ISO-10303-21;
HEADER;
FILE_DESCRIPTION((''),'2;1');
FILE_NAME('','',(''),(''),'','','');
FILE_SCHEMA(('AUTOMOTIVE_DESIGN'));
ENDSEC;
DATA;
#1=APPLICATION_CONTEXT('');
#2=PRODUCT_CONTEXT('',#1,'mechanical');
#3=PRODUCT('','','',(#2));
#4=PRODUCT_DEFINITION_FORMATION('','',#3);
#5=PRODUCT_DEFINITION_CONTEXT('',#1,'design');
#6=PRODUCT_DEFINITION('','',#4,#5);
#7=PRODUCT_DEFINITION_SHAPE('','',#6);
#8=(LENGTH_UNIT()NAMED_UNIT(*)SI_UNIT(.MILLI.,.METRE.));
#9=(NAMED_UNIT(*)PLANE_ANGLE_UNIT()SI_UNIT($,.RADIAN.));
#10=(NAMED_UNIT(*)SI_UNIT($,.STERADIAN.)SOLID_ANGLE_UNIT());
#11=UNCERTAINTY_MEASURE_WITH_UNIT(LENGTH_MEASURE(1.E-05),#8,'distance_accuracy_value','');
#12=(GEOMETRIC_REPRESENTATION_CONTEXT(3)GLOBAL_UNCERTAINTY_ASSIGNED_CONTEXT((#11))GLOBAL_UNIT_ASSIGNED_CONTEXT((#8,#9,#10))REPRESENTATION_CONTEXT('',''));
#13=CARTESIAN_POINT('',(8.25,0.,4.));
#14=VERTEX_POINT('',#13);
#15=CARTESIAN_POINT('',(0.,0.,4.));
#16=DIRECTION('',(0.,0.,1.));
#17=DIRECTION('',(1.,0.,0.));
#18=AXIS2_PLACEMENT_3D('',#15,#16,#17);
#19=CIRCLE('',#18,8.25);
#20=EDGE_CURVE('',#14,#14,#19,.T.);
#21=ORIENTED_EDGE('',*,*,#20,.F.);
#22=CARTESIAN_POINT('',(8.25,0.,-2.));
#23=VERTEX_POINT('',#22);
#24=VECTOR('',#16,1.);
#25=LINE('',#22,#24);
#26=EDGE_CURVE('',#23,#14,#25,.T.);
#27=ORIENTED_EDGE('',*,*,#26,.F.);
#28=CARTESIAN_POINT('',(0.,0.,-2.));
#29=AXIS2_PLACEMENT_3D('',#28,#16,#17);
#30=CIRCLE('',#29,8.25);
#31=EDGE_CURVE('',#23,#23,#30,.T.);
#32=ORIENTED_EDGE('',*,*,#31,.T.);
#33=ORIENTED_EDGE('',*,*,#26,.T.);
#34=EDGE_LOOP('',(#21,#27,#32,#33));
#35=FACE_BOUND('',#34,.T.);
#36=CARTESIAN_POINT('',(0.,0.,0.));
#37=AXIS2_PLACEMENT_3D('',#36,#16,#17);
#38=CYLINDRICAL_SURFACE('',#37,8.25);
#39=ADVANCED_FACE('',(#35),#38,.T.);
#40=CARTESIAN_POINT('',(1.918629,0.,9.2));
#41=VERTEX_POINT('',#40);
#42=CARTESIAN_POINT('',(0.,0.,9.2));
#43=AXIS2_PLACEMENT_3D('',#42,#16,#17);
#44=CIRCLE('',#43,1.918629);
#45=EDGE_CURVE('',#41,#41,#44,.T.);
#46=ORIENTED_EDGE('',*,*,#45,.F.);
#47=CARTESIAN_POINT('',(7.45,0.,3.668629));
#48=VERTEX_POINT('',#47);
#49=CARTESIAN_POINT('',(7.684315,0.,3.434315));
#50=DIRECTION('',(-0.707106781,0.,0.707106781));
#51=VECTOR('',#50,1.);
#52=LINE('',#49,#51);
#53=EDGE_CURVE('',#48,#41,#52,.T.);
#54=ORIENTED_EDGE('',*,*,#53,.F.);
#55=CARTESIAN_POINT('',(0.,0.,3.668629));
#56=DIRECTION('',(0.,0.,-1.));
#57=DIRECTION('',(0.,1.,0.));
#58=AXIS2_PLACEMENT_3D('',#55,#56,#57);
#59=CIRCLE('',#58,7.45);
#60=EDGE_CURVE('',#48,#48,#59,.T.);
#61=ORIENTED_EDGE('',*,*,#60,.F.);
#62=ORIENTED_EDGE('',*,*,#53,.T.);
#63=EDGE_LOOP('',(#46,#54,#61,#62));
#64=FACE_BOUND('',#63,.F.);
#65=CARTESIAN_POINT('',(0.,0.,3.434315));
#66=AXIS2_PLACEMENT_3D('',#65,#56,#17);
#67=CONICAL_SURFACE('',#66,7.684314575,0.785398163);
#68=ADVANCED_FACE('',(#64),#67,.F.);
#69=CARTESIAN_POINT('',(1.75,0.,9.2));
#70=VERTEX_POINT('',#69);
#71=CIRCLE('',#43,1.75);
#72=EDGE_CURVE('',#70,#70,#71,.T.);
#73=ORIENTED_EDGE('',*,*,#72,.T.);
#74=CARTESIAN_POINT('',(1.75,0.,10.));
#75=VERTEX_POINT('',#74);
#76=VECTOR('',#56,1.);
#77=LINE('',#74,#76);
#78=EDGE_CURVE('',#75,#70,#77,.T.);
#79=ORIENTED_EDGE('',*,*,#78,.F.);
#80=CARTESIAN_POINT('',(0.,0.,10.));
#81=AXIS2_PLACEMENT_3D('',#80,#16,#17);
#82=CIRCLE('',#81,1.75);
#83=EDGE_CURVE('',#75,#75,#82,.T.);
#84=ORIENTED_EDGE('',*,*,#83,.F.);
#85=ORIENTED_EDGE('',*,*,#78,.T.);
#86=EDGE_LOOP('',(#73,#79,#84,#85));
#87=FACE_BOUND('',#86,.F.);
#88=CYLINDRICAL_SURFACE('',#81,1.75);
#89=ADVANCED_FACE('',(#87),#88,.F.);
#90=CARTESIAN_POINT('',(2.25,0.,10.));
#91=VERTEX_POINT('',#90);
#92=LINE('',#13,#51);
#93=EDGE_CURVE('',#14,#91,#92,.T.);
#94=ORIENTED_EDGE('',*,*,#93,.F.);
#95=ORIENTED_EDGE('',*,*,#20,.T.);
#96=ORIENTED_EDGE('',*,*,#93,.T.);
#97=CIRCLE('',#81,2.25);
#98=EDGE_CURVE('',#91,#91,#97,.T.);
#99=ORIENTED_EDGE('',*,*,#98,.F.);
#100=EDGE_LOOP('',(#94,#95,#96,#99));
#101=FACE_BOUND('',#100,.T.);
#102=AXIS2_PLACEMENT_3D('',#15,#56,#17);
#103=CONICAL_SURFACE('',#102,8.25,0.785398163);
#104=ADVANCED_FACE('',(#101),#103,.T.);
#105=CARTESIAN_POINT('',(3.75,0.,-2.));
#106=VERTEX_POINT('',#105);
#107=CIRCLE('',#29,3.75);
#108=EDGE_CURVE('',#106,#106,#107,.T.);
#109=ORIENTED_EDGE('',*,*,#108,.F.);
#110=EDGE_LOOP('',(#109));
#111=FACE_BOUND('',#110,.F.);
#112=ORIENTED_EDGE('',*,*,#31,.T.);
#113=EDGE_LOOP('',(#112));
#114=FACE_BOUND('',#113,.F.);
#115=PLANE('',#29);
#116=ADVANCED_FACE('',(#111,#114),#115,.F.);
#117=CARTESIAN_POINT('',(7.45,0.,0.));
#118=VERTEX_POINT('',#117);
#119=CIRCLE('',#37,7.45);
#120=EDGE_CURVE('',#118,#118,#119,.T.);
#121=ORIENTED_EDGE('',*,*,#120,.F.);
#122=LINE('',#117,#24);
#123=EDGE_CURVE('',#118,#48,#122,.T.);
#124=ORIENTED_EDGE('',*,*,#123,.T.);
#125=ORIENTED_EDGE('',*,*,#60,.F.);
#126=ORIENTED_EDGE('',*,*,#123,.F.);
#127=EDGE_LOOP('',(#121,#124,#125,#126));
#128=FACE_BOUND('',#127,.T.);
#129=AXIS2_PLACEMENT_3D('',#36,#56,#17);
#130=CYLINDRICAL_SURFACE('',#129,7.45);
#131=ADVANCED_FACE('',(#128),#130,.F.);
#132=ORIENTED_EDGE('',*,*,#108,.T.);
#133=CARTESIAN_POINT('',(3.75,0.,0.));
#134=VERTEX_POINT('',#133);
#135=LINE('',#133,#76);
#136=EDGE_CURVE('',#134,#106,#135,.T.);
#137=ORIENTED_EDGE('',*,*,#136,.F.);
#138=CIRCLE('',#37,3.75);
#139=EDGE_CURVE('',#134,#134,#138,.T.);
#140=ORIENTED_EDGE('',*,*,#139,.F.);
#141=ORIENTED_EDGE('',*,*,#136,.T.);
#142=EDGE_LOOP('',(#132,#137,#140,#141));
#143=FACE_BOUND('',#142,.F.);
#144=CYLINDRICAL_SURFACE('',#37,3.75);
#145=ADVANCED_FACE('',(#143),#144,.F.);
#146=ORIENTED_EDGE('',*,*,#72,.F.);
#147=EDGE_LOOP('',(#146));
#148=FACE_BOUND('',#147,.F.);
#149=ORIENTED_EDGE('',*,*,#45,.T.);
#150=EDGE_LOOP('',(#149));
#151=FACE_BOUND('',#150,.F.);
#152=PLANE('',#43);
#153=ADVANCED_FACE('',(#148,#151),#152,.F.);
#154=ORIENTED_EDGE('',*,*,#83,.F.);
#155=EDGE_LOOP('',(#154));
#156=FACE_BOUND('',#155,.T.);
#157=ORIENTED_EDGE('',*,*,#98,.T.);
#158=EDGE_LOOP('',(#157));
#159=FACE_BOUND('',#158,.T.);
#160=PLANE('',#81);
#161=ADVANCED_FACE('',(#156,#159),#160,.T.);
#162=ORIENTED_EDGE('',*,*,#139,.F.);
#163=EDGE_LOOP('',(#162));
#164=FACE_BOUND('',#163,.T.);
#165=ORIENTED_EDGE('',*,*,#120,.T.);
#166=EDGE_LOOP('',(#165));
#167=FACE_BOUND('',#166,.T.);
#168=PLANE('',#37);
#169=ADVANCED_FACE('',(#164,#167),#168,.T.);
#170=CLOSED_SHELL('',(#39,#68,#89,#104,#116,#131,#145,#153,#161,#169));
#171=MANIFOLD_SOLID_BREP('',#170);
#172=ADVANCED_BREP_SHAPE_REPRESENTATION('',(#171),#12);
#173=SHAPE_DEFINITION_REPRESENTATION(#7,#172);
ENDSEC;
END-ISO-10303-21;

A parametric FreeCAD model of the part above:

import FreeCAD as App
import Part
import Sketcher

V = App.Vector
Q = App.Units.Quantity


def edges_at(feature, points):
    """Names of the edges that pass closest to the given points."""
    edges = feature.Shape.Edges
    near = lambda p: min(range(len(edges)), key=lambda i: edges[i].distToShape(Part.Vertex(*p))[0])
    return sorted({f"Edge{near(p) + 1}" for p in points})


def faces_at(feature, points):
    """Names of the faces that lie closest to the given points."""
    faces = feature.Shape.Faces
    near = lambda p: min(range(len(faces)), key=lambda i: faces[i].distToShape(Part.Vertex(*p))[0])
    return sorted({f"Face{near(p) + 1}" for p in points})

doc = App.newDocument("Part")
body = doc.addObject("PartDesign::Body", "Body")

sketch1 = doc.addObject("Sketcher::SketchObject", "Sketch")
body.addObject(sketch1)
sketch1.AttachmentSupport = (doc.XY_Plane, [""])
sketch1.MapMode = "FlatFace"
sketch1.addGeometry(Part.Circle(V(0, 0, 0), V(0, 0, 1), 8), False)
sketch1.addConstraint(Sketcher.Constraint("Coincident", 0, 3, -1, 1))
sketch1.addConstraint(Sketcher.Constraint("Diameter", 0, Q("16.5 mm")))
pad1 = doc.addObject("PartDesign::Pad", "Pad")
body.addObject(pad1)
pad1.Profile = sketch1
pad1.Length = 10
doc.recompute()

chamfer = doc.addObject("PartDesign::Chamfer", "Chamfer")
body.addObject(chamfer)
chamfer.Base = (pad1, edges_at(pad1, [(-8.25, 0, 10)]))
chamfer.Size = 6
doc.recompute()

thickness = doc.addObject("PartDesign::Thickness", "Thickness")
body.addObject(thickness)
thickness.Base = (chamfer, faces_at(chamfer, [(0, 0, 0)]))
thickness.Value = 0.8
thickness.Reversed = True
thickness.Join = "Arc"

sketch2 = doc.addObject("Sketcher::SketchObject", "Sketch001")
body.addObject(sketch2)
sketch2.AttachmentSupport = (doc.XY_Plane, [""])
sketch2.MapMode = "FlatFace"
sketch2.AttachmentOffset = App.Placement(V(0, 0, 10), App.Rotation())
sketch2.addGeometry(Part.Circle(V(0, 0, 0), V(0, 0, 1), 1.8), False)
sketch2.addConstraint(Sketcher.Constraint("Coincident", 0, 3, -1, 1))
sketch2.addConstraint(Sketcher.Constraint("Diameter", 0, Q("3.5 mm")))
pocket1 = doc.addObject("PartDesign::Pocket", "Pocket")
body.addObject(pocket1)
pocket1.Profile = sketch2
pocket1.Length = 25

sketch3 = doc.addObject("Sketcher::SketchObject", "Sketch002")
body.addObject(sketch3)
sketch3.AttachmentSupport = (doc.XY_Plane, [""])
sketch3.MapMode = "FlatFace"
sketch3.addGeometry(Part.Circle(V(0, 0, 0), V(0, 0, 1), 8.2), False)
sketch3.addGeometry(Part.Circle(V(0, 0, 0), V(0, 0, 1), 3.8), False)
sketch3.addConstraint(Sketcher.Constraint("Coincident", 0, 3, -1, 1))
sketch3.addConstraint(Sketcher.Constraint("Coincident", 1, 3, -1, 1))
sketch3.addConstraint(Sketcher.Constraint("Diameter", 0, Q("16.5 mm")))
sketch3.addConstraint(Sketcher.Constraint("Diameter", 1, Q("7.5 mm")))
pad2 = doc.addObject("PartDesign::Pad", "Pad001")
body.addObject(pad2)
pad2.Profile = sketch3
pad2.Length = 2
pad2.Reversed = True

doc.recompute()
